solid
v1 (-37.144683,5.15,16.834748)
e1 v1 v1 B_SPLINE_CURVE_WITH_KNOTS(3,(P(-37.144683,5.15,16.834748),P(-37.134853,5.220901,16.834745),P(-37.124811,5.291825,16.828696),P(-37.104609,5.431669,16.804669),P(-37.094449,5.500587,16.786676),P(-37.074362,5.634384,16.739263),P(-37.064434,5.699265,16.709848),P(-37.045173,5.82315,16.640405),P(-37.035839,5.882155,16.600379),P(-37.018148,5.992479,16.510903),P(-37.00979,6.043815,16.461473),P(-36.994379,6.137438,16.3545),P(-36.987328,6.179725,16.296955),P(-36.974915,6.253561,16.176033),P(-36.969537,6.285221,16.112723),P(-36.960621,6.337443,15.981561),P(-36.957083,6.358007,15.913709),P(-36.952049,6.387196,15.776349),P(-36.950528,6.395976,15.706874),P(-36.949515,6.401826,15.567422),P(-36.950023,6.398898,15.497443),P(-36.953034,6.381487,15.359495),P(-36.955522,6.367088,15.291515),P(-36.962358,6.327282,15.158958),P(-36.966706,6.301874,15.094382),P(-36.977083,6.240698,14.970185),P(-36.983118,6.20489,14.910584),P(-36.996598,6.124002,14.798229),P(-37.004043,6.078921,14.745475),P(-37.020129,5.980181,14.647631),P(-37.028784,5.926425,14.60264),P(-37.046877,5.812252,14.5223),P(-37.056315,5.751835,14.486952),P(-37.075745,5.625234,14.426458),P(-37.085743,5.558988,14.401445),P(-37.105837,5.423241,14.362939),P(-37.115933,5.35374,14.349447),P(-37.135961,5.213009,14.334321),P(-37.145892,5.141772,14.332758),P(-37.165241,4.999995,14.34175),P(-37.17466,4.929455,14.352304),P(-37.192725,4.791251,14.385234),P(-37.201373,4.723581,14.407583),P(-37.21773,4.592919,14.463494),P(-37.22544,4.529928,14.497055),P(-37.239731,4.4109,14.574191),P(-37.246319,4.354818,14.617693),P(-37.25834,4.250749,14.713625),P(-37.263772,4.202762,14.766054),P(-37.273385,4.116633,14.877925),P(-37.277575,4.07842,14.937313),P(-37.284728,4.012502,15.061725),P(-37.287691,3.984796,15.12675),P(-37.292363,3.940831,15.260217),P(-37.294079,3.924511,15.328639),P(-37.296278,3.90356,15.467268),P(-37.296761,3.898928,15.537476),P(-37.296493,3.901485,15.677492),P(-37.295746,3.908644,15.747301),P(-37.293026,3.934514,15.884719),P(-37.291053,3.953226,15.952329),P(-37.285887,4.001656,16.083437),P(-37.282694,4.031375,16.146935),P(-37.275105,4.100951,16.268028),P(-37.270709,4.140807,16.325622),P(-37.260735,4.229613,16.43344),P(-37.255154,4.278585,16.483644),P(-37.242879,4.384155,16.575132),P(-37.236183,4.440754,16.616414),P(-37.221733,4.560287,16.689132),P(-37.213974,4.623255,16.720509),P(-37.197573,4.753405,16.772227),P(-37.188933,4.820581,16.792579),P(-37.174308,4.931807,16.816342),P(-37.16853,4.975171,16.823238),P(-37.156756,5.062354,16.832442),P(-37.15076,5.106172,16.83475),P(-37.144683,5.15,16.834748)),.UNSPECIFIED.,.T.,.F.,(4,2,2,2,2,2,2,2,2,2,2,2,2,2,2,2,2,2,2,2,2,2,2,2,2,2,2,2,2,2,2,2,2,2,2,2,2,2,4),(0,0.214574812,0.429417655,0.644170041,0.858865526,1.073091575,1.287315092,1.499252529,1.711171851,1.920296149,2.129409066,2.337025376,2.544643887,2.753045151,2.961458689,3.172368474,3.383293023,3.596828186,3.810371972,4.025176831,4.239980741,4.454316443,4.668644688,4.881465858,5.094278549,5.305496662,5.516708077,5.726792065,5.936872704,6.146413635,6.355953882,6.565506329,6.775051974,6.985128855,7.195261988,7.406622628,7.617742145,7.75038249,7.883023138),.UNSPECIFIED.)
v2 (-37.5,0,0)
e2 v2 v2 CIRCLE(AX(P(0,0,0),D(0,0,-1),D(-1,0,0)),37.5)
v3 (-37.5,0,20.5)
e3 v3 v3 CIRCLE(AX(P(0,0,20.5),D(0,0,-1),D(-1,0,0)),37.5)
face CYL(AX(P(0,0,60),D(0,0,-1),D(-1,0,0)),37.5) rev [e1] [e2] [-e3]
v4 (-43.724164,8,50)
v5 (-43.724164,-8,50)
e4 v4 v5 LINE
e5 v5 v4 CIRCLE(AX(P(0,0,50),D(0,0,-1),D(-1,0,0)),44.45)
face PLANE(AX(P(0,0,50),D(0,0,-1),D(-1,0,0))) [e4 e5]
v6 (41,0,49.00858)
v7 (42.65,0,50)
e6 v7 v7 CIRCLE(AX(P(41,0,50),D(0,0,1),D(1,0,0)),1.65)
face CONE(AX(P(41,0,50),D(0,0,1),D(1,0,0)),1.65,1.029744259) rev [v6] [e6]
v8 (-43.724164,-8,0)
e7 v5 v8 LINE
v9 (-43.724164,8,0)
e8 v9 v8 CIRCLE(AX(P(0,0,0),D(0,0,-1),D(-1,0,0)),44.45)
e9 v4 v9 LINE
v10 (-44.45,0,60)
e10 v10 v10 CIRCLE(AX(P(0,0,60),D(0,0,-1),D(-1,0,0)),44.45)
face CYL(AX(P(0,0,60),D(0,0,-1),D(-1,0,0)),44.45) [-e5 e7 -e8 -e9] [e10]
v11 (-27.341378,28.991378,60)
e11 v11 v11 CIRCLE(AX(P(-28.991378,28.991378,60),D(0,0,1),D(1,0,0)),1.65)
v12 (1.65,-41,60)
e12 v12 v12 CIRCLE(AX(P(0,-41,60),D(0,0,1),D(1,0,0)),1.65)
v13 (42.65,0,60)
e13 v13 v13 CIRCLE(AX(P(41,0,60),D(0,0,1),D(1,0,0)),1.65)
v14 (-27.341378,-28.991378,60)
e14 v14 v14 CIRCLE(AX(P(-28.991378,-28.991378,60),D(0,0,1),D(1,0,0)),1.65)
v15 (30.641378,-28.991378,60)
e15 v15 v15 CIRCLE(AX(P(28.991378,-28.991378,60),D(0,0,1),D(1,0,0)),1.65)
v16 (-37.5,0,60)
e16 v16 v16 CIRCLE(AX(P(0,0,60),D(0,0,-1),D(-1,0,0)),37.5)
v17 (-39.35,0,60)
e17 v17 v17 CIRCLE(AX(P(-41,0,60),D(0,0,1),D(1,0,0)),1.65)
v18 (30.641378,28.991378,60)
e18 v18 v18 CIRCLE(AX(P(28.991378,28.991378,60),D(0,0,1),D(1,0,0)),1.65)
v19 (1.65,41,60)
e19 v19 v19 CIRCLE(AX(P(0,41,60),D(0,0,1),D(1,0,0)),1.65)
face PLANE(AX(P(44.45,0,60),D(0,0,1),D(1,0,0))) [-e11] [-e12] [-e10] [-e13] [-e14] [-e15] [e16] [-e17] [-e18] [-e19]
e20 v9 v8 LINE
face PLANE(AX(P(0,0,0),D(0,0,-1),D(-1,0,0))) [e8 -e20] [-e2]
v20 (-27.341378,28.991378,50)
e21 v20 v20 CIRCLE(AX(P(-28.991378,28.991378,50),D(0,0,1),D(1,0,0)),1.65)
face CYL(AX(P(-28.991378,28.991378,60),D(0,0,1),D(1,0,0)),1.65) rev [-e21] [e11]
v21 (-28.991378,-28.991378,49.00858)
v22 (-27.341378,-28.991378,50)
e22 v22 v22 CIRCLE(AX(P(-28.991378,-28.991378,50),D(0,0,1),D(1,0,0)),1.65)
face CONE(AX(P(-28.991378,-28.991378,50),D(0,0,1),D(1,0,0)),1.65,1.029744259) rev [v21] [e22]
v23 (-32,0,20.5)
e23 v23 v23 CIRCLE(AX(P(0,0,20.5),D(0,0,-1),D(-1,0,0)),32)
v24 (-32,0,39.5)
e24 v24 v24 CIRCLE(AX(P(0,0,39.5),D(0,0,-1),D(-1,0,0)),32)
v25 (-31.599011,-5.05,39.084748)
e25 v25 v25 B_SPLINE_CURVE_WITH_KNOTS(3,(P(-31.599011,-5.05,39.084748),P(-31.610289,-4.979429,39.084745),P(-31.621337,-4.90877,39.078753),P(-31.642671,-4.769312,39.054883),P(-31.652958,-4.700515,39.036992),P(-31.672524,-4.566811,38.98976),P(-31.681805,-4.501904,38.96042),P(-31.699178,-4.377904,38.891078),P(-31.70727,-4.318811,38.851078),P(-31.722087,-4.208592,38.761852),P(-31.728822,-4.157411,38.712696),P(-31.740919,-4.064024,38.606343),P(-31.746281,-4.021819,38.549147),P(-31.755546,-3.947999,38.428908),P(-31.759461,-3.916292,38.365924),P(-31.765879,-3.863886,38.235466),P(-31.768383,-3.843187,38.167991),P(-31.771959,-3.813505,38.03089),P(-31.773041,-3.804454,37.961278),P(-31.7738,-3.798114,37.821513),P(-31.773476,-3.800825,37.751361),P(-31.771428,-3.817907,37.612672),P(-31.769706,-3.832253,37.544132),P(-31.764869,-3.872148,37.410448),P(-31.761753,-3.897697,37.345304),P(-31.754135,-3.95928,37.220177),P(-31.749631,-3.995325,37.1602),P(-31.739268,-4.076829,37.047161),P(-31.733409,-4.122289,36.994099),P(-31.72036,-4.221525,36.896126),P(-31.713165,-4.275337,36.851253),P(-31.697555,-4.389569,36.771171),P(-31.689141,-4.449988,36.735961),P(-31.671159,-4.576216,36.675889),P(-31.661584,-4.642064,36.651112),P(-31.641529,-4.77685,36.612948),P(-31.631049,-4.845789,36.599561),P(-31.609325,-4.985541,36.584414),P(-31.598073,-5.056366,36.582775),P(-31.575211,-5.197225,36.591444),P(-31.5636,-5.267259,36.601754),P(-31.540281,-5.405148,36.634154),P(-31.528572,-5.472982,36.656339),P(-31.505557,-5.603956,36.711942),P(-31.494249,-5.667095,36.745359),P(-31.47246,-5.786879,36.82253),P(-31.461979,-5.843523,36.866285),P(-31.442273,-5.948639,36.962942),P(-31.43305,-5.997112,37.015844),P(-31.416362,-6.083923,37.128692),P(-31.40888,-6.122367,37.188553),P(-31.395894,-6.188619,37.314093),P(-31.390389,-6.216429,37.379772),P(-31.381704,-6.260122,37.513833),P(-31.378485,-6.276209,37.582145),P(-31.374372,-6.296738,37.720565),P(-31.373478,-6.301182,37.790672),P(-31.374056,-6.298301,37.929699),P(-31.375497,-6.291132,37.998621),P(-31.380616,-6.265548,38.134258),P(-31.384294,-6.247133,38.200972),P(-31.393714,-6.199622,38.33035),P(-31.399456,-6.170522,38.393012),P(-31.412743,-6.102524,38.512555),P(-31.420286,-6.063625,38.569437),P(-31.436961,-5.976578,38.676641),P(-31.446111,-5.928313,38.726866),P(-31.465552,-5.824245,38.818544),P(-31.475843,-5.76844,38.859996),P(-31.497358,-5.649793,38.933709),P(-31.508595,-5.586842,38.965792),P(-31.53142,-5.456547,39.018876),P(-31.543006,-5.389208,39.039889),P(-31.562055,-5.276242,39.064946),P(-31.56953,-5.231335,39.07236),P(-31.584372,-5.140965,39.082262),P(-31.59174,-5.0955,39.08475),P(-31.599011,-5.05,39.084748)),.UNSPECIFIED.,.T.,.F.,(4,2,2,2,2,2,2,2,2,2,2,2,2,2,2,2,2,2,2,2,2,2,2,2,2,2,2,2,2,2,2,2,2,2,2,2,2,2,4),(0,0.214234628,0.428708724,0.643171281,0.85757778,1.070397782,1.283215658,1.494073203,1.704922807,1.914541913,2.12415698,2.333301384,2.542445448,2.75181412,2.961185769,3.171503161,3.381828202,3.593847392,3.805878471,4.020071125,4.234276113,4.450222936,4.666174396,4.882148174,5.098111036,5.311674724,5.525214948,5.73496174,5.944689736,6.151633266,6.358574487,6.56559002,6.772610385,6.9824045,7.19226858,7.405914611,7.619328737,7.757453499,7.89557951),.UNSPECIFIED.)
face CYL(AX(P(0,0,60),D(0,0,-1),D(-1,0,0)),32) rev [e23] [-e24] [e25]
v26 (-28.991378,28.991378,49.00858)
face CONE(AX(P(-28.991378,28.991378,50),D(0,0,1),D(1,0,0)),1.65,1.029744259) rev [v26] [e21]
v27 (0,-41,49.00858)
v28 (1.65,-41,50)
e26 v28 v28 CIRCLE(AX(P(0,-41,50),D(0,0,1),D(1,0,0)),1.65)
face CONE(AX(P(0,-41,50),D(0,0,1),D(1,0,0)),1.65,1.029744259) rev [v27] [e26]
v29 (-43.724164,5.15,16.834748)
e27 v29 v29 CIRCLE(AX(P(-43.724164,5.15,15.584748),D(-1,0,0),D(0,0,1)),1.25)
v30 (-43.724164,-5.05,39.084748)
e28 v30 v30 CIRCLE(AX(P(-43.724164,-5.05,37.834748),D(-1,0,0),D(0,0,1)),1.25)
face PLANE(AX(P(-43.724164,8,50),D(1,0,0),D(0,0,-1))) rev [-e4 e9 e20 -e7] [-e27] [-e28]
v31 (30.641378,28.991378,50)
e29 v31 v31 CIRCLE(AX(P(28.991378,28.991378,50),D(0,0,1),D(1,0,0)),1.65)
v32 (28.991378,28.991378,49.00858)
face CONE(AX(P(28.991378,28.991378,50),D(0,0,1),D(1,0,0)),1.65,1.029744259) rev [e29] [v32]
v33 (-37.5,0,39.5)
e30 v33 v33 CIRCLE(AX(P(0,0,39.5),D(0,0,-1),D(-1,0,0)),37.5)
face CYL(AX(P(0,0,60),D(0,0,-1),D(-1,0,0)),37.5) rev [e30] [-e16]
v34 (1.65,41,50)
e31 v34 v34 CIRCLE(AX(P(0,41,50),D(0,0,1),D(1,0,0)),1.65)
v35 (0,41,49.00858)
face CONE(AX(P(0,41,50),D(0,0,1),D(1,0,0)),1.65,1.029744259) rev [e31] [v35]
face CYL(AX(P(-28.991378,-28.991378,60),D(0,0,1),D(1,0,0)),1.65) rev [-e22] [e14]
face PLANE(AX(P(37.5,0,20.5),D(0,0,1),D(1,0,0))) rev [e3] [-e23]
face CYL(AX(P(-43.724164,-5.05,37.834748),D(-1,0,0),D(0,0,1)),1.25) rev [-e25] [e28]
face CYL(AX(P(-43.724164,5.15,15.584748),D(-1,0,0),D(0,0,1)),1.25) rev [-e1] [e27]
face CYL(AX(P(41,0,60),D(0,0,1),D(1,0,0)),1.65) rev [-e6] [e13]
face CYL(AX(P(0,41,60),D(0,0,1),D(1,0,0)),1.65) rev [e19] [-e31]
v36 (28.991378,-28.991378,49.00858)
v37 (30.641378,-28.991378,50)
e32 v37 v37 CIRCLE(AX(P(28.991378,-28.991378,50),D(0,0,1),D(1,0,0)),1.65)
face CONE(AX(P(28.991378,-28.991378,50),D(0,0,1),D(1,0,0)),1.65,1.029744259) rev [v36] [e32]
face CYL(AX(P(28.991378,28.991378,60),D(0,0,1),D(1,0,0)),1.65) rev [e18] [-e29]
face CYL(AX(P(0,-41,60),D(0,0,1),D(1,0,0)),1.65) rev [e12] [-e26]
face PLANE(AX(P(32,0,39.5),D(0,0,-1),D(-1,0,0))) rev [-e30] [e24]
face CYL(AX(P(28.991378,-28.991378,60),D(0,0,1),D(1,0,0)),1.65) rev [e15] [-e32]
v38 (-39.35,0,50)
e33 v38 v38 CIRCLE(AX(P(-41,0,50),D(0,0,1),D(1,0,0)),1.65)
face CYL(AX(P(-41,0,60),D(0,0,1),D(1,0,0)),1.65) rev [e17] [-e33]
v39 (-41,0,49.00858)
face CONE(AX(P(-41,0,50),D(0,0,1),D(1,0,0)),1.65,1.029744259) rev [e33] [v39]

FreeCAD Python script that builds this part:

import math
import FreeCAD as App
import Part
import Sketcher

V = App.Vector
Q = App.Units.Quantity

doc = App.newDocument("Part")
body = doc.addObject("PartDesign::Body", "Body")

# Sketch on XZ plane
sketch1 = body.newObject("Sketcher::SketchObject", "Sketch")
sketch1.AttachmentSupport = (doc.getObject("XZ_Plane"), [""])
sketch1.MapMode = "FlatFace"
sketch1.addGeometry([
    Part.LineSegment(V(0, 60, 0), V(0, 0, 0)),
    Part.LineSegment(V(0, 0, 0), V(44, 0, 0)),
    Part.LineSegment(V(44, 0, 0), V(44, 60, 0)),
    Part.LineSegment(V(44, 60, 0), V(0, 60, 0)),
], False)
sketch1.addConstraint([
    Sketcher.Constraint("Coincident", 0, 2, 1, 1),
    Sketcher.Constraint("Coincident", 1, 2, 2, 1),
    Sketcher.Constraint("Coincident", 2, 2, 3, 1),
    Sketcher.Constraint("Coincident", 3, 2, 0, 1),
    Sketcher.Constraint("Vertical", 0),
    Sketcher.Constraint("Horizontal", 1),
    Sketcher.Constraint("Vertical", 2),
    Sketcher.Constraint("Horizontal", 3),
    Sketcher.Constraint("Coincident", 0, 2, -1, 1),
    Sketcher.Constraint("DistanceY", 0, 2, 0, 1, Q("60 mm")),
    Sketcher.Constraint("DistanceX", 1, 1, 1, 2, Q("44.45 mm")),
])
revolution = body.newObject("PartDesign::Revolution", "Revolution")
revolution.Profile = sketch1
revolution.ReferenceAxis = (sketch1, ["V_Axis"])
revolution.Angle = 360

# Sketch on XY plane
sketch2 = body.newObject("Sketcher::SketchObject", "Sketch001")
sketch2.AttachmentSupport = (doc.getObject("XY_Plane"), [""])
sketch2.MapMode = "FlatFace"
sketch2.AttachmentOffset = App.Placement(V(0, 0, 50), App.Rotation())
sketch2.addGeometry([
    Part.LineSegment(V(-44, 8, 0), V(-44, -8, 0)),
    Part.ArcOfCircle(Part.Circle(V(0, 0, 0), V(0, 0, 1), 44), math.radians(170), math.radians(190)),
], False)
sketch2.addConstraint([
    Sketcher.Constraint("Coincident", 0, 1, 1, 1),
    Sketcher.Constraint("Coincident", 1, 2, 0, 2),
    Sketcher.Constraint("Vertical", 0),
    Sketcher.Constraint("Coincident", 1, 3, -1, 1),
    Sketcher.Constraint("DistanceY", 0, 2, 0, 1, Q("16 mm")),
    Sketcher.Constraint("Radius", 1, Q("44.45 mm")),
])
pocket1 = body.newObject("PartDesign::Pocket", "Pocket")
pocket1.Profile = sketch2
pocket1.Length = 50

# Sketch on XZ plane
sketch3 = body.newObject("Sketcher::SketchObject", "Sketch002")
sketch3.AttachmentSupport = (doc.getObject("XZ_Plane"), [""])
sketch3.MapMode = "FlatFace"
sketch3.addGeometry([
    Part.LineSegment(V(38, 60, 0), V(0, 60, 0)),  # 0
    Part.LineSegment(V(0, 60, 0), V(0, 0, 0)),  # 1
    Part.LineSegment(V(0, 0, 0), V(38, 0, 0)),  # 2
    Part.LineSegment(V(38, 0, 0), V(38, 20, 0)),  # 3
    Part.LineSegment(V(38, 20, 0), V(32, 20, 0)),  # 4
    Part.LineSegment(V(32, 20, 0), V(32, 40, 0)),  # 5
    Part.LineSegment(V(32, 40, 0), V(38, 40, 0)),  # 6
    Part.LineSegment(V(38, 40, 0), V(38, 60, 0)),  # 7
], False)
sketch3.addConstraint([
    Sketcher.Constraint("Coincident", 0, 2, 1, 1),
    Sketcher.Constraint("Coincident", 1, 2, 2, 1),
    Sketcher.Constraint("Coincident", 2, 2, 3, 1),
    Sketcher.Constraint("Coincident", 3, 2, 4, 1),
    Sketcher.Constraint("Coincident", 4, 2, 5, 1),
    Sketcher.Constraint("Coincident", 5, 2, 6, 1),
    Sketcher.Constraint("Coincident", 6, 2, 7, 1),
    Sketcher.Constraint("Coincident", 7, 2, 0, 1),
    Sketcher.Constraint("Horizontal", 0),
    Sketcher.Constraint("Vertical", 1),
    Sketcher.Constraint("Horizontal", 2),
    Sketcher.Constraint("Vertical", 3),
    Sketcher.Constraint("Horizontal", 4),
    Sketcher.Constraint("Vertical", 5),
    Sketcher.Constraint("Horizontal", 6),
    Sketcher.Constraint("Vertical", 7),
    Sketcher.Constraint("Coincident", 1, 2, -1, 1),
    Sketcher.Constraint("Vertical", 3, 2, 6, 2),
    Sketcher.Constraint("Equal", 3, 7),
    Sketcher.Constraint("DistanceY", 1, 2, 1, 1, Q("60 mm")),
    Sketcher.Constraint("DistanceY", 5, 1, 5, 2, Q("19 mm")),
    Sketcher.Constraint("DistanceX", 0, 2, 0, 1, Q("37.5 mm")),
    Sketcher.Constraint("DistanceX", 4, 2, 4, 1, Q("5.5 mm")),
])
groove = body.newObject("PartDesign::Groove", "Groove")
groove.Profile = sketch3
groove.ReferenceAxis = (sketch3, ["V_Axis"])
groove.Angle = 360

# Sketch on XY plane
sketch4 = body.newObject("Sketcher::SketchObject", "Sketch003")
sketch4.AttachmentSupport = (doc.getObject("XY_Plane"), [""])
sketch4.MapMode = "FlatFace"
sketch4.AttachmentOffset = App.Placement(V(0, 0, 60), App.Rotation())
sketch4.addGeometry([
    Part.Circle(V(29, 29, 0), V(0, 0, 1), 1.6),  # 0
    Part.Circle(V(0, 41, 0), V(0, 0, 1), 1.6),  # 1
    Part.Circle(V(-29, 29, 0), V(0, 0, 1), 1.6),  # 2
    Part.Circle(V(-41, 0, 0), V(0, 0, 1), 1.6),  # 3
    Part.Circle(V(-29, -29, 0), V(0, 0, 1), 1.6),  # 4
    Part.Circle(V(0, -41, 0), V(0, 0, 1), 1.6),  # 5
    Part.Circle(V(29, -29, 0), V(0, 0, 1), 1.6),  # 6
    Part.Circle(V(41, 0, 0), V(0, 0, 1), 1.6),  # 7
], False)
sketch4.addConstraint([
    Sketcher.Constraint("Equal", 0, 1),
    Sketcher.Constraint("Equal", 1, 2),
    Sketcher.Constraint("Equal", 2, 3),
    Sketcher.Constraint("Equal", 3, 4),
    Sketcher.Constraint("Equal", 4, 5),
    Sketcher.Constraint("Equal", 5, 6),
    Sketcher.Constraint("Equal", 6, 7),
    Sketcher.Constraint("Symmetric", 0, 3, 4, 3, -1, 1),
    Sketcher.Constraint("Symmetric", 1, 3, 5, 3, -1, 1),
    Sketcher.Constraint("Symmetric", 2, 3, 6, 3, -1, 1),
    Sketcher.Constraint("Symmetric", 3, 3, 7, 3, -1, 1),
    Sketcher.Constraint("Symmetric", 0, 3, 2, 3, -2),
    Sketcher.Constraint("PointOnObject", 1, 3, -2),
    Sketcher.Constraint("PointOnObject", 3, 3, -1),
    Sketcher.Constraint("Diameter", 0, Q("3.3 mm")),
    Sketcher.Constraint("DistanceY", -1, 1, 1, 3, Q("41 mm")),
    Sketcher.Constraint("DistanceX", 3, 3, -1, 1, Q("41 mm")),
    Sketcher.Constraint("DistanceX", -1, 1, 0, 3, Q("28.991378 mm")),
    Sketcher.Constraint("DistanceY", -1, 1, 0, 3, Q("28.991378 mm")),
])
doc.recompute()
hole = body.newObject("PartDesign::Hole", "Hole")
hole.Profile = sketch4
hole.ThreadType = "None"
hole.Diameter = 3.3
hole.DepthType = "Dimension"
hole.Depth = 10
hole.DrillPoint = "Angled"
hole.DrillPointAngle = 118

# Sketch on YZ plane
sketch5 = body.newObject("Sketcher::SketchObject", "Sketch004")
sketch5.AttachmentSupport = (doc.getObject("YZ_Plane"), [""])
sketch5.MapMode = "FlatFace"
sketch5.AttachmentOffset = App.Placement(V(0, 0, -43.724164), App.Rotation())
sketch5.addGeometry(Part.Circle(V(5.2, 15.6, 0), V(0, 0, 1), 1.2), False)
sketch5.addConstraint([
    Sketcher.Constraint("Diameter", 0, Q("2.5 mm")),
    Sketcher.Constraint("DistanceX", -1, 1, 0, 3, Q("5.15 mm")),
    Sketcher.Constraint("DistanceY", -1, 1, 0, 3, Q("15.584748 mm")),
])
pocket2 = body.newObject("PartDesign::Pocket", "Pocket001")
pocket2.Profile = sketch5
pocket2.Type = "UpToFirst"
pocket2.Reversed = True

# Sketch on YZ plane
sketch6 = body.newObject("Sketcher::SketchObject", "Sketch005")
sketch6.AttachmentSupport = (doc.getObject("YZ_Plane"), [""])
sketch6.MapMode = "FlatFace"
sketch6.AttachmentOffset = App.Placement(V(0, 0, -43.724164), App.Rotation())
sketch6.addGeometry(Part.Circle(V(-5, 37.8, 0), V(0, 0, 1), 1.2), False)
sketch6.addConstraint([
    Sketcher.Constraint("Diameter", 0, Q("2.5 mm")),
    Sketcher.Constraint("DistanceX", 0, 3, -1, 1, Q("5.05 mm")),
    Sketcher.Constraint("DistanceY", -1, 1, 0, 3, Q("37.834748 mm")),
])
pocket3 = body.newObject("PartDesign::Pocket", "Pocket002")
pocket3.Profile = sketch6
pocket3.Type = "UpToFirst"
pocket3.Reversed = True

doc.recompute()
